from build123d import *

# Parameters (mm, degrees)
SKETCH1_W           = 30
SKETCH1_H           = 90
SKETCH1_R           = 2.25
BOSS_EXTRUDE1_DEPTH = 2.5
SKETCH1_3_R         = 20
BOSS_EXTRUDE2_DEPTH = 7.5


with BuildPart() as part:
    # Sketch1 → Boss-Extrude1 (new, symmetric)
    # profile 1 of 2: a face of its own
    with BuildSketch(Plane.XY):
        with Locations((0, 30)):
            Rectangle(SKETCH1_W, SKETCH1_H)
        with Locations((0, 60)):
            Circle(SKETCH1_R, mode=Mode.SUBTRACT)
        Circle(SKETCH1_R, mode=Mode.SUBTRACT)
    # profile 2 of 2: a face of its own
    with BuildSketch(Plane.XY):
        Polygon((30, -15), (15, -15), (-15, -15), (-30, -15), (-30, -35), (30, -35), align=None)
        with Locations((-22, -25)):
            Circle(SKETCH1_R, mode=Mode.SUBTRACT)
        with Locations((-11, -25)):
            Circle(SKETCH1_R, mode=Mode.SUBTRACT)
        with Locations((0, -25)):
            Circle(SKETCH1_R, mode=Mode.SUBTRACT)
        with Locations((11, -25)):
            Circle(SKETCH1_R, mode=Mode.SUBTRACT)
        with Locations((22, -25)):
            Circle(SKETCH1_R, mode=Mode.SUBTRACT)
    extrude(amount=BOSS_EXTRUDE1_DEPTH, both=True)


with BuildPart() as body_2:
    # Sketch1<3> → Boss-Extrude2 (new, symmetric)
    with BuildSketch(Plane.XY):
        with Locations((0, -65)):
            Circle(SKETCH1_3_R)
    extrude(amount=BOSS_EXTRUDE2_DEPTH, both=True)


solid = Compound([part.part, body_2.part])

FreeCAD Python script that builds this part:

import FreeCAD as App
import Part
import Sketcher
from FreeCAD import Vector


def add_polygon(sketch, points):
    """Adds a closed chain of lines whose ends are joined by coincident constraints."""
    first, n = sketch.GeometryCount, len(points)
    for a, b in zip(points, points[1:] + points[:1]):
        sketch.addGeometry(Part.LineSegment(App.Vector(*a, 0), App.Vector(*b, 0)), False)
    for i in range(n):
        sketch.addConstraint(Sketcher.Constraint("Coincident", first + i, 2, first + (i + 1) % n, 1))

doc = App.newDocument("Part")
body = doc.addObject("PartDesign::Body", "Body")

sketch1 = body.newObject("Sketcher::SketchObject", "Sketch")
sketch1.AttachmentSupport = (doc.getObject("XY_Plane"), [""])
sketch1.MapMode = "FlatFace"
add_polygon(sketch1, [(-15, 75), (-15, -15), (-30, -15), (-30, -35), (30, -35), (30, -15), (15, -15), (15, 75)])
sketch1.addGeometry(Part.Circle(Vector(0, 0, 0), Vector(0, 0, 1), 2.2), False)
sketch1.addGeometry(Part.Circle(Vector(0, 60, 0), Vector(0, 0, 1), 2.2), False)
sketch1.addGeometry(Part.Circle(Vector(22, -25, 0), Vector(0, 0, 1), 2.2), False)
sketch1.addGeometry(Part.Circle(Vector(-22, -25, 0), Vector(0, 0, 1), 2.2), False)
sketch1.addGeometry(Part.Circle(Vector(-11, -25, 0), Vector(0, 0, 1), 2.2), False)
sketch1.addGeometry(Part.Circle(Vector(0, -25, 0), Vector(0, 0, 1), 2.2), False)
sketch1.addGeometry(Part.Circle(Vector(11, -25, 0), Vector(0, 0, 1), 2.2), False)
sketch1.addConstraint([
    Sketcher.Constraint("Vertical", 0),
    Sketcher.Constraint("Horizontal", 1),
    Sketcher.Constraint("Vertical", 2),
    Sketcher.Constraint("Horizontal", 3),
    Sketcher.Constraint("Vertical", 4),
    Sketcher.Constraint("Horizontal", 5),
    Sketcher.Constraint("Vertical", 6),
    Sketcher.Constraint("Horizontal", 7),
    Sketcher.Constraint("Coincident", 8, 3, -1, 1),
    Sketcher.Constraint("Equal", 8, 9),
    Sketcher.Constraint("Equal", 9, 10),
    Sketcher.Constraint("Equal", 10, 11),
    Sketcher.Constraint("Equal", 11, 12),
    Sketcher.Constraint("Equal", 12, 13),
    Sketcher.Constraint("Equal", 13, 14),
    Sketcher.Constraint("Symmetric", 10, 3, 11, 3, -2),
    Sketcher.Constraint("Symmetric", 12, 3, 14, 3, -2),
    Sketcher.Constraint("Symmetric", 1, 2, 4, 2, -2),
    Sketcher.Constraint("PointOnObject", 9, 3, -2),
    Sketcher.Constraint("PointOnObject", 13, 3, -2),
    Sketcher.Constraint("Horizontal", 11, 3, 12, 3),
    Sketcher.Constraint("Horizontal", 12, 3, 13, 3),
    Sketcher.Constraint("Equal", 1, 5),
    Sketcher.Constraint("Diameter", 8, 4.5),
    Sketcher.Constraint("DistanceX", 1, 2, 1, 1, 15.0),
    Sketcher.Constraint("DistanceX", 3, 1, 3, 2, 60.0),
    Sketcher.Constraint("DistanceY", 0, 2, 0, 1, 90.0),
    Sketcher.Constraint("DistanceY", 2, 2, 2, 1, 20.0),
    Sketcher.Constraint("DistanceY", -1, 1, 9, 3, 60.0),
    Sketcher.Constraint("DistanceX", -1, 1, 10, 3, 22.0),
    Sketcher.Constraint("DistanceY", 10, 3, -1, 1, 25.0),
    Sketcher.Constraint("DistanceX", 12, 3, -1, 1, 11.0),
    Sketcher.Constraint("DistanceY", 0, 2, -1, 1, 15.0),
])
pad1 = body.newObject("PartDesign::Pad", "Pad")
pad1.Profile = sketch1
pad1.Length = 5
pad1.Midplane = True
body2 = doc.addObject("PartDesign::Body", "Body001")

sketch2 = body2.newObject("Sketcher::SketchObject", "Sketch001")
sketch2.AttachmentSupport = (doc.getObject("XY_Plane001"), [""])
sketch2.MapMode = "FlatFace"
sketch2.addGeometry(Part.Circle(Vector(0, -65, 0), Vector(0, 0, 1), 20), False)
sketch2.addConstraint([
    Sketcher.Constraint("PointOnObject", 0, 3, -2),
    Sketcher.Constraint("Diameter", 0, 40.0),
    Sketcher.Constraint("DistanceY", 0, 3, -1, 1, 65.0),
])
pad2 = body2.newObject("PartDesign::Pad", "Pad001")
pad2.Profile = sketch2
pad2.Length = 15
pad2.Midplane = True

doc.recompute()
